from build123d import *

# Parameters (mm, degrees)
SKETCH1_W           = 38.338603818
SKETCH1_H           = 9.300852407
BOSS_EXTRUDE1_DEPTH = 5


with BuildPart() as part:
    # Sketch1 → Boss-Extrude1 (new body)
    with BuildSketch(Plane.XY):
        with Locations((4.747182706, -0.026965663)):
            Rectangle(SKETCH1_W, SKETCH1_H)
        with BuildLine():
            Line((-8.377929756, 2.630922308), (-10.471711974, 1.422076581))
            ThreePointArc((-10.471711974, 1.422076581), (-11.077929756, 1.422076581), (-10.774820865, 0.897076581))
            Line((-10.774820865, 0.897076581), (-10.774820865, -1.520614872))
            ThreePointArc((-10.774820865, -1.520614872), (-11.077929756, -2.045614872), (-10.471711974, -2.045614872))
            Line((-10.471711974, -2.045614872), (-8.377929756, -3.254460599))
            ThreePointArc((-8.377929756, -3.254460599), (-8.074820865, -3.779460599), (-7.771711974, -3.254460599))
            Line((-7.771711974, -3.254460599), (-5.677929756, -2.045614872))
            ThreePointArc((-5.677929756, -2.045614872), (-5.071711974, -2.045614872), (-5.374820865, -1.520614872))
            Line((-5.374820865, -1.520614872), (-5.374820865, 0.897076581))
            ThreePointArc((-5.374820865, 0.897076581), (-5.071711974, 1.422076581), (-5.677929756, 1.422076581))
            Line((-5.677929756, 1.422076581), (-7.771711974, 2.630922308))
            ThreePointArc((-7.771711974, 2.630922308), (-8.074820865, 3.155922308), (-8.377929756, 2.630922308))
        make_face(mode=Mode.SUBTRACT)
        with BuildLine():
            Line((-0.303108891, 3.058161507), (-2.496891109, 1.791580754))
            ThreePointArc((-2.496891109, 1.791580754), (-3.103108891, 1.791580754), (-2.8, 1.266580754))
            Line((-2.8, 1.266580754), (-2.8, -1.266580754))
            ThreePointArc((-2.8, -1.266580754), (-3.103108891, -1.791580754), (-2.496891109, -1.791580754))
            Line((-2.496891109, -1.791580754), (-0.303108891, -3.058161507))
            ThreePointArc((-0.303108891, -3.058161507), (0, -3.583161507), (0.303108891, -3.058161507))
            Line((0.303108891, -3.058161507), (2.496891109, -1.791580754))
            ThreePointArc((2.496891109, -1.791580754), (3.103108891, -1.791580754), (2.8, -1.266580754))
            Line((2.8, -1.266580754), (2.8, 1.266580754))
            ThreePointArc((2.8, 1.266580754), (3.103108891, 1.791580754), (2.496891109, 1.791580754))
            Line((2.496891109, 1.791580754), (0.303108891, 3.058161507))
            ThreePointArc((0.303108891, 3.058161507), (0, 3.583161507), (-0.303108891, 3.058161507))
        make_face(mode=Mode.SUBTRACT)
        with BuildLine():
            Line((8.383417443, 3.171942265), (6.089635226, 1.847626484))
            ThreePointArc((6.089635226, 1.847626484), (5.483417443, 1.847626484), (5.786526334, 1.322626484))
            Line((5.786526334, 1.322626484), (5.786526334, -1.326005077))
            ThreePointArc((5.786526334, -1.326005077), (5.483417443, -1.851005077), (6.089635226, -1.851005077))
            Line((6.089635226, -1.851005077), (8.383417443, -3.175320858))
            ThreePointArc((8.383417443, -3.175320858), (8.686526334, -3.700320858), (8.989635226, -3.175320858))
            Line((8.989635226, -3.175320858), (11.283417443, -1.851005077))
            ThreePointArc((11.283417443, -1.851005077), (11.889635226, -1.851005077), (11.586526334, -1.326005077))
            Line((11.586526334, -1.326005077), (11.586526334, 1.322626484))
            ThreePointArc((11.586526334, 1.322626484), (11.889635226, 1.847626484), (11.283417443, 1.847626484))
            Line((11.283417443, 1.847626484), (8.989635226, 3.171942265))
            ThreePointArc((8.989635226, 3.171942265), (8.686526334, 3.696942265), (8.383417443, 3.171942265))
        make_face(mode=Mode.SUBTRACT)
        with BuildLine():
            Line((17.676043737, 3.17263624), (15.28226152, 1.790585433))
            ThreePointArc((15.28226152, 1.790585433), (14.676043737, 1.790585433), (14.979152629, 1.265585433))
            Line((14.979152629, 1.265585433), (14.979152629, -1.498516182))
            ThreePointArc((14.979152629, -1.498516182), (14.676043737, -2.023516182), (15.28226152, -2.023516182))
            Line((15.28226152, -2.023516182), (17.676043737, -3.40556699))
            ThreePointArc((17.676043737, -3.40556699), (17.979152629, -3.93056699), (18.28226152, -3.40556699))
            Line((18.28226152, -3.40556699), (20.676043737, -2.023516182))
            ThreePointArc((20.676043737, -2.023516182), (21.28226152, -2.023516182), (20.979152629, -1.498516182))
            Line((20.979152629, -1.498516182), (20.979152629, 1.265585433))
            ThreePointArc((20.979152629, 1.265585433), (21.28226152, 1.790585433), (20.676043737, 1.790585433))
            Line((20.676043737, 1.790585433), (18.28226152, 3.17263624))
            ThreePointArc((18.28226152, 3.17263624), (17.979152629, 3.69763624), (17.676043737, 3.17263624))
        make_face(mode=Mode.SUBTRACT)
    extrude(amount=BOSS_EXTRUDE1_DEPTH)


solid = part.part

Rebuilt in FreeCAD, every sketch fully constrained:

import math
import FreeCAD as App
import Part
import Sketcher

V = App.Vector
Q = App.Units.Quantity

doc = App.newDocument("Part")
body = doc.addObject("PartDesign::Body", "Body")

# Sketch on XY plane
sketch1 = doc.addObject("Sketcher::SketchObject", "Sketch")
body.addObject(sketch1)
sketch1.AttachmentSupport = (doc.XY_Plane, [""])
sketch1.MapMode = "FlatFace"
sketch1.addGeometry([
    Part.LineSegment(V(-14.42, 4.62, 0), V(-14.42, -4.68, 0)),  # 0
    Part.LineSegment(V(-14.42, -4.68, 0), V(23.92, -4.68, 0)),  # 1
    Part.LineSegment(V(23.92, -4.68, 0), V(23.92, 4.62, 0)),  # 2
    Part.LineSegment(V(23.92, 4.62, 0), V(-14.42, 4.62, 0)),  # 3
    Part.LineSegment(V(-10.47, 1.42, 0), V(-8.38, 2.63, 0)),  # 4
    Part.ArcOfCircle(Part.Circle(V(-8.07, 2.81, 0), V(0, 0, 1), 0.35), math.radians(-30), math.radians(210)),  # 5
    Part.LineSegment(V(-7.77, 2.63, 0), V(-5.68, 1.42, 0)),  # 6
    Part.ArcOfCircle(Part.Circle(V(-5.37, 1.25, 0), V(0, 0, 1), 0.35), math.radians(-90), math.radians(150)),  # 7
    Part.LineSegment(V(-5.37, 0.9, 0), V(-5.37, -1.52, 0)),  # 8
    Part.ArcOfCircle(Part.Circle(V(-5.37, -1.87, 0), V(0, 0, 1), 0.35), math.radians(-150), math.radians(90)),  # 9
    Part.LineSegment(V(-5.68, -2.05, 0), V(-7.77, -3.25, 0)),  # 10
    Part.ArcOfCircle(Part.Circle(V(-8.07, -3.43, 0), V(0, 0, 1), 0.35), math.radians(150), math.radians(390)),  # 11
    Part.LineSegment(V(-8.38, -3.25, 0), V(-10.47, -2.05, 0)),  # 12
    Part.ArcOfCircle(Part.Circle(V(-10.77, -1.87, 0), V(0, 0, 1), 0.35), math.radians(90), math.radians(330)),  # 13
    Part.LineSegment(V(-10.77, -1.52, 0), V(-10.77, 0.9, 0)),  # 14
    Part.ArcOfCircle(Part.Circle(V(-10.77, 1.25, 0), V(0, 0, 1), 0.35), math.radians(30), math.radians(270)),  # 15
    Part.LineSegment(V(-2.5, 1.79, 0), V(-0.3, 3.06, 0)),  # 16
    Part.ArcOfCircle(Part.Circle(V(0, 3.23, 0), V(0, 0, 1), 0.35), math.radians(-30), math.radians(210)),  # 17
    Part.LineSegment(V(0.3, 3.06, 0), V(2.5, 1.79, 0)),  # 18
    Part.ArcOfCircle(Part.Circle(V(2.8, 1.62, 0), V(0, 0, 1), 0.35), math.radians(-90), math.radians(150)),  # 19
    Part.LineSegment(V(2.8, 1.27, 0), V(2.8, -1.27, 0)),  # 20
    Part.ArcOfCircle(Part.Circle(V(2.8, -1.62, 0), V(0, 0, 1), 0.35), math.radians(-150), math.radians(90)),  # 21
    Part.LineSegment(V(2.5, -1.79, 0), V(0.3, -3.06, 0)),  # 22
    Part.ArcOfCircle(Part.Circle(V(0, -3.23, 0), V(0, 0, 1), 0.35), math.radians(150), math.radians(390)),  # 23
    Part.LineSegment(V(-0.3, -3.06, 0), V(-2.5, -1.79, 0)),  # 24
    Part.ArcOfCircle(Part.Circle(V(-2.8, -1.62, 0), V(0, 0, 1), 0.35), math.radians(90), math.radians(330)),  # 25
    Part.LineSegment(V(-2.8, -1.27, 0), V(-2.8, 1.27, 0)),  # 26
    Part.ArcOfCircle(Part.Circle(V(-2.8, 1.62, 0), V(0, 0, 1), 0.35), math.radians(30), math.radians(270)),  # 27
    Part.LineSegment(V(6.09, 1.85, 0), V(8.38, 3.17, 0)),  # 28
    Part.ArcOfCircle(Part.Circle(V(8.69, 3.35, 0), V(0, 0, 1), 0.35), math.radians(-30), math.radians(210)),  # 29
    Part.LineSegment(V(8.99, 3.17, 0), V(11.28, 1.85, 0)),  # 30
    Part.ArcOfCircle(Part.Circle(V(11.59, 1.67, 0), V(0, 0, 1), 0.35), math.radians(-90), math.radians(150)),  # 31
    Part.LineSegment(V(11.59, 1.32, 0), V(11.59, -1.33, 0)),  # 32
    Part.ArcOfCircle(Part.Circle(V(11.59, -1.68, 0), V(0, 0, 1), 0.35), math.radians(-150), math.radians(90)),  # 33
    Part.LineSegment(V(11.28, -1.85, 0), V(8.99, -3.18, 0)),  # 34
    Part.ArcOfCircle(Part.Circle(V(8.69, -3.35, 0), V(0, 0, 1), 0.35), math.radians(150), math.radians(390)),  # 35
    Part.LineSegment(V(8.38, -3.18, 0), V(6.09, -1.85, 0)),  # 36
    Part.ArcOfCircle(Part.Circle(V(5.79, -1.68, 0), V(0, 0, 1), 0.35), math.radians(90), math.radians(330)),  # 37
    Part.LineSegment(V(5.79, -1.33, 0), V(5.79, 1.32, 0)),  # 38
    Part.ArcOfCircle(Part.Circle(V(5.79, 1.67, 0), V(0, 0, 1), 0.35), math.radians(30), math.radians(270)),  # 39
    Part.LineSegment(V(15.28, 1.79, 0), V(17.68, 3.17, 0)),  # 40
    Part.ArcOfCircle(Part.Circle(V(17.98, 3.35, 0), V(0, 0, 1), 0.35), math.radians(-30), math.radians(210)),  # 41
    Part.LineSegment(V(18.28, 3.17, 0), V(20.68, 1.79, 0)),  # 42
    Part.ArcOfCircle(Part.Circle(V(20.98, 1.62, 0), V(0, 0, 1), 0.35), math.radians(-90), math.radians(150)),  # 43
    Part.LineSegment(V(20.98, 1.27, 0), V(20.98, -1.5, 0)),  # 44
    Part.ArcOfCircle(Part.Circle(V(20.98, -1.85, 0), V(0, 0, 1), 0.35), math.radians(-150), math.radians(90)),  # 45
    Part.LineSegment(V(20.68, -2.02, 0), V(18.28, -3.41, 0)),  # 46
    Part.ArcOfCircle(Part.Circle(V(17.98, -3.58, 0), V(0, 0, 1), 0.35), math.radians(150), math.radians(390)),  # 47
    Part.LineSegment(V(17.68, -3.41, 0), V(15.28, -2.02, 0)),  # 48
    Part.ArcOfCircle(Part.Circle(V(14.98, -1.85, 0), V(0, 0, 1), 0.35), math.radians(90), math.radians(330)),  # 49
    Part.LineSegment(V(14.98, -1.5, 0), V(14.98, 1.27, 0)),  # 50
    Part.ArcOfCircle(Part.Circle(V(14.98, 1.62, 0), V(0, 0, 1), 0.35), math.radians(30), math.radians(270)),  # 51
], False)
sketch1.addConstraint([
    Sketcher.Constraint("Coincident", 0, 2, 1, 1),
    Sketcher.Constraint("Coincident", 1, 2, 2, 1),
    Sketcher.Constraint("Coincident", 2, 2, 3, 1),
    Sketcher.Constraint("Coincident", 3, 2, 0, 1),
    Sketcher.Constraint("Coincident", 4, 2, 5, 2),
    Sketcher.Constraint("Coincident", 5, 1, 6, 1),
    Sketcher.Constraint("Coincident", 6, 2, 7, 2),
    Sketcher.Constraint("Coincident", 7, 1, 8, 1),
    Sketcher.Constraint("Coincident", 8, 2, 9, 2),
    Sketcher.Constraint("Coincident", 9, 1, 10, 1),
    Sketcher.Constraint("Coincident", 10, 2, 11, 2),
    Sketcher.Constraint("Coincident", 11, 1, 12, 1),
    Sketcher.Constraint("Coincident", 12, 2, 13, 2),
    Sketcher.Constraint("Coincident", 13, 1, 14, 1),
    Sketcher.Constraint("Coincident", 14, 2, 15, 2),
    Sketcher.Constraint("Coincident", 15, 1, 4, 1),
    Sketcher.Constraint("Coincident", 16, 2, 17, 2),
    Sketcher.Constraint("Coincident", 17, 1, 18, 1),
    Sketcher.Constraint("Coincident", 18, 2, 19, 2),
    Sketcher.Constraint("Coincident", 19, 1, 20, 1),
    Sketcher.Constraint("Coincident", 20, 2, 21, 2),
    Sketcher.Constraint("Coincident", 21, 1, 22, 1),
    Sketcher.Constraint("Coincident", 22, 2, 23, 2),
    Sketcher.Constraint("Coincident", 23, 1, 24, 1),
    Sketcher.Constraint("Coincident", 24, 2, 25, 2),
    Sketcher.Constraint("Coincident", 25, 1, 26, 1),
    Sketcher.Constraint("Coincident", 26, 2, 27, 2),
    Sketcher.Constraint("Coincident", 27, 1, 16, 1),
    Sketcher.Constraint("Coincident", 28, 2, 29, 2),
    Sketcher.Constraint("Coincident", 29, 1, 30, 1),
    Sketcher.Constraint("Coincident", 30, 2, 31, 2),
    Sketcher.Constraint("Coincident", 31, 1, 32, 1),
    Sketcher.Constraint("Coincident", 32, 2, 33, 2),
    Sketcher.Constraint("Coincident", 33, 1, 34, 1),
    Sketcher.Constraint("Coincident", 34, 2, 35, 2),
    Sketcher.Constraint("Coincident", 35, 1, 36, 1),
    Sketcher.Constraint("Coincident", 36, 2, 37, 2),
    Sketcher.Constraint("Coincident", 37, 1, 38, 1),
    Sketcher.Constraint("Coincident", 38, 2, 39, 2),
    Sketcher.Constraint("Coincident", 39, 1, 28, 1),
    Sketcher.Constraint("Coincident", 40, 2, 41, 2),
    Sketcher.Constraint("Coincident", 41, 1, 42, 1),
    Sketcher.Constraint("Coincident", 42, 2, 43, 2),
    Sketcher.Constraint("Coincident", 43, 1, 44, 1),
    Sketcher.Constraint("Coincident", 44, 2, 45, 2),
    Sketcher.Constraint("Coincident", 45, 1, 46, 1),
    Sketcher.Constraint("Coincident", 46, 2, 47, 2),
    Sketcher.Constraint("Coincident", 47, 1, 48, 1),
    Sketcher.Constraint("Coincident", 48, 2, 49, 2),
    Sketcher.Constraint("Coincident", 49, 1, 50, 1),
    Sketcher.Constraint("Coincident", 50, 2, 51, 2),
    Sketcher.Constraint("Coincident", 51, 1, 40, 1),
    Sketcher.Constraint("Vertical", 0),
    Sketcher.Constraint("Horizontal", 1),
    Sketcher.Constraint("Vertical", 2),
    Sketcher.Constraint("Horizontal", 3),
    Sketcher.Constraint("Vertical", 8),
    Sketcher.Constraint("Vertical", 14),
    Sketcher.Constraint("Vertical", 20),
    Sketcher.Constraint("Vertical", 26),
    Sketcher.Constraint("Vertical", 32),
    Sketcher.Constraint("Vertical", 38),
    Sketcher.Constraint("Vertical", 44),
    Sketcher.Constraint("Vertical", 50),
    Sketcher.Constraint("Equal", 5, 7),
    Sketcher.Constraint("Equal", 7, 9),
    Sketcher.Constraint("Equal", 9, 11),
    Sketcher.Constraint("Equal", 11, 13),
    Sketcher.Constraint("Equal", 13, 15),
    Sketcher.Constraint("Equal", 15, 17),
    Sketcher.Constraint("Equal", 17, 19),
    Sketcher.Constraint("Equal", 19, 21),
    Sketcher.Constraint("Equal", 21, 23),
    Sketcher.Constraint("Equal", 23, 25),
    Sketcher.Constraint("Equal", 25, 27),
    Sketcher.Constraint("Equal", 27, 29),
    Sketcher.Constraint("Equal", 29, 31),
    Sketcher.Constraint("Equal", 31, 33),
    Sketcher.Constraint("Equal", 33, 35),
    Sketcher.Constraint("Equal", 35, 37),
    Sketcher.Constraint("Equal", 37, 39),
    Sketcher.Constraint("Equal", 39, 41),
    Sketcher.Constraint("Equal", 41, 43),
    Sketcher.Constraint("Equal", 43, 45),
    Sketcher.Constraint("Equal", 45, 47),
    Sketcher.Constraint("Equal", 47, 49),
    Sketcher.Constraint("Equal", 49, 51),
    Sketcher.Constraint("Symmetric", 17, 3, 23, 3, -1, 1),
    Sketcher.Constraint("Symmetric", 19, 3, 25, 3, -1, 1),
    Sketcher.Constraint("Symmetric", 21, 3, 27, 3, -1, 1),
    Sketcher.Constraint("Symmetric", 21, 3, 25, 3, -2),
    Sketcher.Constraint("Symmetric", 16, 2, 17, 1, -2),
    Sketcher.Constraint("Parallel", 4, 10),
    Sketcher.Constraint("Parallel", 6, 12),
    Sketcher.Constraint("Parallel", 10, 16),
    Sketcher.Constraint("Parallel", 12, 18),
    Sketcher.Constraint("Parallel", 16, 22),
    Sketcher.Constraint("Parallel", 18, 24),
    Sketcher.Constraint("Parallel", 22, 28),
    Sketcher.Constraint("Parallel", 24, 30),
    Sketcher.Constraint("Parallel", 28, 34),
    Sketcher.Constraint("Parallel", 30, 36),
    Sketcher.Constraint("Parallel", 34, 40),
    Sketcher.Constraint("Parallel", 36, 42),
    Sketcher.Constraint("Parallel", 40, 46),
    Sketcher.Constraint("Parallel", 42, 48),
    Sketcher.Constraint("Horizontal", 9, 3, 13, 3),
    Sketcher.Constraint("Horizontal", 7, 3, 15, 3),
    Sketcher.Constraint("Horizontal", 33, 3, 37, 3),
    Sketcher.Constraint("Horizontal", 31, 3, 39, 3),
    Sketcher.Constraint("Horizontal", 45, 3, 49, 3),
    Sketcher.Constraint("Horizontal", 43, 3, 51, 3),
    Sketcher.Constraint("Horizontal", 4, 2, 5, 1),
    Sketcher.Constraint("Horizontal", 10, 2, 11, 1),
    Sketcher.Constraint("Horizontal", 9, 1, 12, 2),
    Sketcher.Constraint("Horizontal", 6, 2, 15, 1),
    Sketcher.Constraint("Horizontal", 22, 2, 23, 1),
    Sketcher.Constraint("Horizontal", 21, 1, 24, 2),
    Sketcher.Constraint("Horizontal", 28, 2, 29, 1),
    Sketcher.Constraint("Horizontal", 34, 2, 35, 1),
    Sketcher.Constraint("Horizontal", 33, 1, 36, 2),
    Sketcher.Constraint("Horizontal", 30, 2, 39, 1),
    Sketcher.Constraint("Horizontal", 40, 2, 41, 1),
    Sketcher.Constraint("Horizontal", 46, 2, 47, 1),
    Sketcher.Constraint("Horizontal", 45, 1, 48, 2),
    Sketcher.Constraint("Horizontal", 42, 2, 51, 1),
    Sketcher.Constraint("Vertical", 7, 3, 9, 3),
    Sketcher.Constraint("Vertical", 5, 3, 11, 3),
    Sketcher.Constraint("Vertical", 31, 3, 33, 3),
    Sketcher.Constraint("Vertical", 29, 3, 35, 3),
    Sketcher.Constraint("Vertical", 43, 3, 45, 3),
    Sketcher.Constraint("Vertical", 41, 3, 47, 3),
    Sketcher.Constraint("Vertical", 9, 3, 7, 1),
    Sketcher.Constraint("Vertical", 6, 2, 9, 1),
    Sketcher.Constraint("Vertical", 5, 1, 10, 2),
    Sketcher.Constraint("Vertical", 15, 3, 13, 1),
    Sketcher.Constraint("Vertical", 21, 3, 19, 1),
    Sketcher.Constraint("Vertical", 18, 2, 21, 1),
    Sketcher.Constraint("Vertical", 27, 3, 25, 1),
    Sketcher.Constraint("Vertical", 33, 3, 31, 1),
    Sketcher.Constraint("Vertical", 30, 2, 33, 1),
    Sketcher.Constraint("Vertical", 29, 1, 34, 2),
    Sketcher.Constraint("Vertical", 39, 3, 37, 1),
    Sketcher.Constraint("Vertical", 45, 3, 43, 1),
    Sketcher.Constraint("Vertical", 42, 2, 45, 1),
    Sketcher.Constraint("Vertical", 41, 1, 46, 2),
    Sketcher.Constraint("Vertical", 51, 3, 49, 1),
    Sketcher.Constraint("Angle", 4, Q("30 deg")),
    Sketcher.Constraint("Radius", 5, Q("0.35 mm")),
    Sketcher.Constraint("DistanceX", -1, 1, 19, 3, Q("2.8 mm")),
    Sketcher.Constraint("DistanceY", 44, 2, 44, 1, Q("2.764102 mm")),
    Sketcher.Constraint("Distance", 40, Q("2.764102 mm")),
    Sketcher.Constraint("DistanceY", 8, 2, 8, 1, Q("2.417691 mm")),
    Sketcher.Constraint("DistanceY", 20, 2, 20, 1, Q("2.533162 mm")),
    Sketcher.Constraint("DistanceY", 32, 2, 32, 1, Q("2.648632 mm")),
    Sketcher.Constraint("Distance", 4, Q("2.417691 mm")),
    Sketcher.Constraint("Distance", 16, Q("2.533162 mm")),
    Sketcher.Constraint("Distance", 28, Q("2.648632 mm")),
    Sketcher.Constraint("DistanceX", 1, 1, 1, 2, Q("38.338604 mm")),
    Sketcher.Constraint("DistanceY", 0, 2, 0, 1, Q("9.300852 mm")),
    Sketcher.Constraint("DistanceX", 5, 3, -1, 1, Q("8.074821 mm")),
    Sketcher.Constraint("DistanceX", 7, 3, -1, 1, Q("5.374821 mm")),
    Sketcher.Constraint("DistanceY", 11, 3, -1, 1, Q("3.429461 mm")),
    Sketcher.Constraint("DistanceY", 35, 3, -1, 1, Q("3.350321 mm")),
    Sketcher.Constraint("DistanceX", 0, 2, -1, 1, Q("14.422119 mm")),
    Sketcher.Constraint("DistanceY", 0, 2, -1, 1, Q("4.677392 mm")),
    Sketcher.Constraint("DistanceX", 4, 2, -1, 1, Q("8.37793 mm")),
    Sketcher.Constraint("DistanceX", 16, 2, -1, 1, Q("0.303109 mm")),
    Sketcher.Constraint("DistanceY", 34, 2, -1, 1, Q("3.175321 mm")),
    Sketcher.Constraint("DistanceX", -1, 1, 41, 1, Q("18.282262 mm")),
    Sketcher.Constraint("DistanceX", -1, 1, 48, 2, Q("15.282262 mm")),
    Sketcher.Constraint("DistanceX", -1, 1, 29, 3, Q("8.686526 mm")),
    Sketcher.Constraint("DistanceY", -1, 1, 29, 3, Q("3.346942 mm")),
    Sketcher.Constraint("DistanceY", -1, 1, 41, 3, Q("3.347636 mm")),
    Sketcher.Constraint("DistanceX", -1, 1, 43, 3, Q("20.979153 mm")),
])
pad1 = doc.addObject("PartDesign::Pad", "Pad")
body.addObject(pad1)
pad1.Profile = sketch1
pad1.Length = 5

doc.recompute()
